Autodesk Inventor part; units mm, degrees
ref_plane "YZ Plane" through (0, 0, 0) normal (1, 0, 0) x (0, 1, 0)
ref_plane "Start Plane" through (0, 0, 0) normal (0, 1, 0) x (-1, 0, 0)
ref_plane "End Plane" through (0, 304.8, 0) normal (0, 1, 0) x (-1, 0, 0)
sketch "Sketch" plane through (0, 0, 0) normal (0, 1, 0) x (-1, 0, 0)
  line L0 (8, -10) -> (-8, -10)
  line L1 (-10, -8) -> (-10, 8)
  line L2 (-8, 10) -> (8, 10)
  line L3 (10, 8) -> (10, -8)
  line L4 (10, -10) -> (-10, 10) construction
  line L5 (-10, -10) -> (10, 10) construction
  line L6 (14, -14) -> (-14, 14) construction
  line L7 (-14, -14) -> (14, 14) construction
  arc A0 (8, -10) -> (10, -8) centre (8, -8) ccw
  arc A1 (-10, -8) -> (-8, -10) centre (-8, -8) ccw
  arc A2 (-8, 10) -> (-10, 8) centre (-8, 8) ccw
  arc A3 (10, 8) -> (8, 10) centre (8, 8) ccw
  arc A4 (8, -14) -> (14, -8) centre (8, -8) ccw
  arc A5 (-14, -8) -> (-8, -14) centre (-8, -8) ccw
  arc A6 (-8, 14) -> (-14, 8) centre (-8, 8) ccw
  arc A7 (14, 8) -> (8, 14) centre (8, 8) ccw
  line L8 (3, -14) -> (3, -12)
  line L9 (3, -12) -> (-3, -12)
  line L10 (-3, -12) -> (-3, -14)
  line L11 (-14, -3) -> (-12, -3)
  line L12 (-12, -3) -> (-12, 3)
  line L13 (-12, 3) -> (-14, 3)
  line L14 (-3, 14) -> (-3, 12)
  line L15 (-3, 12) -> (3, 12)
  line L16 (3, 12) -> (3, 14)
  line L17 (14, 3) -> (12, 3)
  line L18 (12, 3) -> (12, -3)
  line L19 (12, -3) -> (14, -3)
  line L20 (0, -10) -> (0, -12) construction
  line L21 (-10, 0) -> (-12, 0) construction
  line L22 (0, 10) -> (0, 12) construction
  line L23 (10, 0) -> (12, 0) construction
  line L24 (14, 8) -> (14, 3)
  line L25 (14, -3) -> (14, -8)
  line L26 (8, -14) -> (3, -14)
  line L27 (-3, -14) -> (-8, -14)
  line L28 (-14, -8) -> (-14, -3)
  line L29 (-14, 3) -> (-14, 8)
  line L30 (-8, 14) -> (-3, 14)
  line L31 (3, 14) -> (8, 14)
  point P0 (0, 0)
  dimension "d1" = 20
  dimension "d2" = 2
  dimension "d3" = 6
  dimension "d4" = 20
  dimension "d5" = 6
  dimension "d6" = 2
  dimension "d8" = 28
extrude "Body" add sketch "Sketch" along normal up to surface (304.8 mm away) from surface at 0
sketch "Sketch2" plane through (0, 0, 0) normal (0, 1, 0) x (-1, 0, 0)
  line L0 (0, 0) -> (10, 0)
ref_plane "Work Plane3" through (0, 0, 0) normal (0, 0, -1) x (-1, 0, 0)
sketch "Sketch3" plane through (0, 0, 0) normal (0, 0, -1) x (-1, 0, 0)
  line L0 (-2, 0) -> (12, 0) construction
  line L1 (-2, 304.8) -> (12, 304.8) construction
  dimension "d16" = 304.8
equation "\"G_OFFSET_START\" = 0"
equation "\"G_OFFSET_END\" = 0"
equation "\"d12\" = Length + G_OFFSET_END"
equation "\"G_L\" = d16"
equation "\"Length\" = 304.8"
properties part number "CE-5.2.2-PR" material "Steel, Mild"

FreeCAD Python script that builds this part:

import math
import FreeCAD as App
import Part
import Sketcher

doc = App.newDocument("Part")
params = doc.addObject("Spreadsheet::Sheet", "Params")
for row, (alias, value) in enumerate([
    ("sketch1_radius", "6 mm"),
    ("sketch1_radius2", "2 mm"),
    ("sketch1_width", "2 mm"),
    ("sketch1_width2", "6 mm"),
    ("sketch1_width3", "5 mm"),
    ("pad1_length", "304.8 mm"),
], start=1):
    params.set(f"A{row}", alias)
    params.set(f"B{row}", "=" + value)
    params.setAlias(f"B{row}", alias)

body = doc.addObject("PartDesign::Body", "Body")

sketch1 = body.newObject("Sketcher::SketchObject", "Sketch")
sketch1.AttachmentSupport = (doc.getObject("XZ_Plane"), [""])
sketch1.MapMode = "FlatFace"
sketch1.addGeometry(Part.LineSegment(App.Vector(-3, -14, 0), App.Vector(-8, -14, 0)), False)
sketch1.addGeometry(Part.ArcOfCircle(Part.Circle(App.Vector(-8, -8, 0), App.Vector(0, 0, 1), 6), math.radians(180), math.radians(270)), False)
sketch1.addGeometry(Part.LineSegment(App.Vector(-14, -8, 0), App.Vector(-14, -3, 0)), False)
sketch1.addGeometry(Part.LineSegment(App.Vector(-14, -3, 0), App.Vector(-12, -3, 0)), False)
sketch1.addGeometry(Part.LineSegment(App.Vector(-12, -3, 0), App.Vector(-12, 3, 0)), False)
sketch1.addGeometry(Part.LineSegment(App.Vector(-12, 3, 0), App.Vector(-14, 3, 0)), False)
sketch1.addGeometry(Part.LineSegment(App.Vector(-14, 3, 0), App.Vector(-14, 8, 0)), False)
sketch1.addGeometry(Part.ArcOfCircle(Part.Circle(App.Vector(-8, 8, 0), App.Vector(0, 0, 1), 6), math.radians(90), math.radians(180)), False)
sketch1.addGeometry(Part.LineSegment(App.Vector(-8, 14, 0), App.Vector(-3, 14, 0)), False)
sketch1.addGeometry(Part.LineSegment(App.Vector(-3, 14, 0), App.Vector(-3, 12, 0)), False)
sketch1.addGeometry(Part.LineSegment(App.Vector(-3, 12, 0), App.Vector(3, 12, 0)), False)
sketch1.addGeometry(Part.LineSegment(App.Vector(3, 12, 0), App.Vector(3, 14, 0)), False)
sketch1.addGeometry(Part.LineSegment(App.Vector(3, 14, 0), App.Vector(8, 14, 0)), False)
sketch1.addGeometry(Part.ArcOfCircle(Part.Circle(App.Vector(8, 8, 0), App.Vector(0, 0, 1), 6), math.radians(0), math.radians(90)), False)
sketch1.addGeometry(Part.LineSegment(App.Vector(14, 8, 0), App.Vector(14, 3, 0)), False)
sketch1.addGeometry(Part.LineSegment(App.Vector(14, 3, 0), App.Vector(12, 3, 0)), False)
sketch1.addGeometry(Part.LineSegment(App.Vector(12, 3, 0), App.Vector(12, -3, 0)), False)
sketch1.addGeometry(Part.LineSegment(App.Vector(12, -3, 0), App.Vector(14, -3, 0)), False)
sketch1.addGeometry(Part.LineSegment(App.Vector(14, -3, 0), App.Vector(14, -8, 0)), False)
sketch1.addGeometry(Part.ArcOfCircle(Part.Circle(App.Vector(8, -8, 0), App.Vector(0, 0, 1), 6), math.radians(-90), math.radians(0)), False)
sketch1.addGeometry(Part.LineSegment(App.Vector(8, -14, 0), App.Vector(3, -14, 0)), False)
sketch1.addGeometry(Part.LineSegment(App.Vector(3, -14, 0), App.Vector(3, -12, 0)), False)
sketch1.addGeometry(Part.LineSegment(App.Vector(3, -12, 0), App.Vector(-3, -12, 0)), False)
sketch1.addGeometry(Part.LineSegment(App.Vector(-3, -12, 0), App.Vector(-3, -14, 0)), False)
sketch1.addGeometry(Part.ArcOfCircle(Part.Circle(App.Vector(-8, -8, 0), App.Vector(0, 0, 1), 2), math.radians(180), math.radians(270)), False)
sketch1.addGeometry(Part.LineSegment(App.Vector(-8, -10, 0), App.Vector(8, -10, 0)), False)
sketch1.addGeometry(Part.ArcOfCircle(Part.Circle(App.Vector(8, -8, 0), App.Vector(0, 0, 1), 2), math.radians(-90), math.radians(0)), False)
sketch1.addGeometry(Part.LineSegment(App.Vector(10, -8, 0), App.Vector(10, 8, 0)), False)
sketch1.addGeometry(Part.ArcOfCircle(Part.Circle(App.Vector(8, 8, 0), App.Vector(0, 0, 1), 2), math.radians(0), math.radians(90)), False)
sketch1.addGeometry(Part.LineSegment(App.Vector(8, 10, 0), App.Vector(-8, 10, 0)), False)
sketch1.addGeometry(Part.ArcOfCircle(Part.Circle(App.Vector(-8, 8, 0), App.Vector(0, 0, 1), 2), math.radians(90), math.radians(180)), False)
sketch1.addGeometry(Part.LineSegment(App.Vector(-10, 8, 0), App.Vector(-10, -8, 0)), False)
sketch1.addConstraint(Sketcher.Constraint("Tangent", 0, 2, 1, 2))
sketch1.addConstraint(Sketcher.Constraint("Tangent", 1, 1, 2, 1))
sketch1.addConstraint(Sketcher.Constraint("Coincident", 2, 2, 3, 1))
sketch1.addConstraint(Sketcher.Constraint("Coincident", 3, 2, 4, 1))
sketch1.addConstraint(Sketcher.Constraint("Coincident", 4, 2, 5, 1))
sketch1.addConstraint(Sketcher.Constraint("Coincident", 5, 2, 6, 1))
sketch1.addConstraint(Sketcher.Constraint("Tangent", 6, 2, 7, 2))
sketch1.addConstraint(Sketcher.Constraint("Tangent", 7, 1, 8, 1))
sketch1.addConstraint(Sketcher.Constraint("Coincident", 8, 2, 9, 1))
sketch1.addConstraint(Sketcher.Constraint("Coincident", 9, 2, 10, 1))
sketch1.addConstraint(Sketcher.Constraint("Coincident", 10, 2, 11, 1))
sketch1.addConstraint(Sketcher.Constraint("Coincident", 11, 2, 12, 1))
sketch1.addConstraint(Sketcher.Constraint("Tangent", 12, 2, 13, 2))
sketch1.addConstraint(Sketcher.Constraint("Tangent", 13, 1, 14, 1))
sketch1.addConstraint(Sketcher.Constraint("Coincident", 14, 2, 15, 1))
sketch1.addConstraint(Sketcher.Constraint("Coincident", 15, 2, 16, 1))
sketch1.addConstraint(Sketcher.Constraint("Coincident", 16, 2, 17, 1))
sketch1.addConstraint(Sketcher.Constraint("Coincident", 17, 2, 18, 1))
sketch1.addConstraint(Sketcher.Constraint("Tangent", 18, 2, 19, 2))
sketch1.addConstraint(Sketcher.Constraint("Tangent", 19, 1, 20, 1))
sketch1.addConstraint(Sketcher.Constraint("Coincident", 20, 2, 21, 1))
sketch1.addConstraint(Sketcher.Constraint("Coincident", 21, 2, 22, 1))
sketch1.addConstraint(Sketcher.Constraint("Coincident", 22, 2, 23, 1))
sketch1.addConstraint(Sketcher.Constraint("Coincident", 23, 2, 0, 1))
sketch1.addConstraint(Sketcher.Constraint("Tangent", 24, 2, 25, 1))
sketch1.addConstraint(Sketcher.Constraint("Tangent", 25, 2, 26, 1))
sketch1.addConstraint(Sketcher.Constraint("Tangent", 26, 2, 27, 1))
sketch1.addConstraint(Sketcher.Constraint("Tangent", 27, 2, 28, 1))
sketch1.addConstraint(Sketcher.Constraint("Tangent", 28, 2, 29, 1))
sketch1.addConstraint(Sketcher.Constraint("Tangent", 29, 2, 30, 1))
sketch1.addConstraint(Sketcher.Constraint("Tangent", 30, 2, 31, 1))
sketch1.addConstraint(Sketcher.Constraint("Tangent", 31, 2, 24, 1))
sketch1.addConstraint(Sketcher.Constraint("Horizontal", 0))
sketch1.addConstraint(Sketcher.Constraint("Vertical", 2))
sketch1.addConstraint(Sketcher.Constraint("Horizontal", 3))
sketch1.addConstraint(Sketcher.Constraint("Vertical", 4))
sketch1.addConstraint(Sketcher.Constraint("Horizontal", 5))
sketch1.addConstraint(Sketcher.Constraint("Vertical", 6))
sketch1.addConstraint(Sketcher.Constraint("Horizontal", 8))
sketch1.addConstraint(Sketcher.Constraint("Vertical", 9))
sketch1.addConstraint(Sketcher.Constraint("Horizontal", 10))
sketch1.addConstraint(Sketcher.Constraint("Vertical", 11))
sketch1.addConstraint(Sketcher.Constraint("Horizontal", 12))
sketch1.addConstraint(Sketcher.Constraint("Vertical", 14))
sketch1.addConstraint(Sketcher.Constraint("Horizontal", 15))
sketch1.addConstraint(Sketcher.Constraint("Vertical", 16))
sketch1.addConstraint(Sketcher.Constraint("Horizontal", 17))
sketch1.addConstraint(Sketcher.Constraint("Vertical", 18))
sketch1.addConstraint(Sketcher.Constraint("Horizontal", 20))
sketch1.addConstraint(Sketcher.Constraint("Vertical", 21))
sketch1.addConstraint(Sketcher.Constraint("Horizontal", 22))
sketch1.addConstraint(Sketcher.Constraint("Vertical", 23))
sketch1.addConstraint(Sketcher.Constraint("Horizontal", 25))
sketch1.addConstraint(Sketcher.Constraint("Vertical", 27))
sketch1.addConstraint(Sketcher.Constraint("Horizontal", 29))
sketch1.addConstraint(Sketcher.Constraint("Vertical", 31))
sketch1.addConstraint(Sketcher.Constraint("Coincident", 24, 3, 1, 3))
sketch1.addConstraint(Sketcher.Constraint("Coincident", 26, 3, 19, 3))
sketch1.addConstraint(Sketcher.Constraint("Coincident", 28, 3, 13, 3))
sketch1.addConstraint(Sketcher.Constraint("Coincident", 30, 3, 7, 3))
sketch1.addConstraint(Sketcher.Constraint("Equal", 1, 7))
sketch1.addConstraint(Sketcher.Constraint("Equal", 7, 13))
sketch1.addConstraint(Sketcher.Constraint("Equal", 13, 19))
sketch1.addConstraint(Sketcher.Constraint("Equal", 24, 26))
sketch1.addConstraint(Sketcher.Constraint("Equal", 26, 28))
sketch1.addConstraint(Sketcher.Constraint("Equal", 28, 30))
sketch1.addConstraint(Sketcher.Constraint("Symmetric", 1, 3, 13, 3, -1, 1))
sketch1.addConstraint(Sketcher.Constraint("Symmetric", 3, 2, 15, 2, -1, 1))
sketch1.addConstraint(Sketcher.Constraint("Symmetric", 9, 2, 21, 2, -1, 1))
sketch1.addConstraint(Sketcher.Constraint("Horizontal", 5, 2, 14, 2))
sketch1.addConstraint(Sketcher.Constraint("Horizontal", 3, 2, 16, 2))
sketch1.addConstraint(Sketcher.Constraint("Vertical", 11, 2, 20, 2))
sketch1.addConstraint(Sketcher.Constraint("Vertical", 9, 2, 22, 2))
sketch1.addConstraint(Sketcher.Constraint("Equal", 20, 2))
sketch1.addConstraint(Sketcher.Constraint("Equal", 22, 4))
sketch1.addConstraint(Sketcher.Constraint("Equal", 17, 9))
sketch1.addConstraint(Sketcher.Constraint("Radius", 1, 6.0))
sketch1.addConstraint(Sketcher.Constraint("Radius", 24, 2.0))
sketch1.addConstraint(Sketcher.Constraint("DistanceX", 3, 1, 3, 2, 2.0))
sketch1.addConstraint(Sketcher.Constraint("DistanceX", 10, 1, 10, 2, 6.0))
sketch1.addConstraint(Sketcher.Constraint("DistanceX", 0, 2, 0, 1, 5.0))
sketch1.setExpression("Constraints[76]", "Params.sketch1_radius")
sketch1.setExpression("Constraints[77]", "Params.sketch1_radius2")
sketch1.setExpression("Constraints[78]", "Params.sketch1_width")
sketch1.setExpression("Constraints[79]", "Params.sketch1_width2")
sketch1.setExpression("Constraints[80]", "Params.sketch1_width3")
pad1 = body.newObject("PartDesign::Pad", "Pad")
pad1.Profile = sketch1
pad1.setExpression("Length", "Params.pad1_length")
pad1.Reversed = True

doc.recompute()
